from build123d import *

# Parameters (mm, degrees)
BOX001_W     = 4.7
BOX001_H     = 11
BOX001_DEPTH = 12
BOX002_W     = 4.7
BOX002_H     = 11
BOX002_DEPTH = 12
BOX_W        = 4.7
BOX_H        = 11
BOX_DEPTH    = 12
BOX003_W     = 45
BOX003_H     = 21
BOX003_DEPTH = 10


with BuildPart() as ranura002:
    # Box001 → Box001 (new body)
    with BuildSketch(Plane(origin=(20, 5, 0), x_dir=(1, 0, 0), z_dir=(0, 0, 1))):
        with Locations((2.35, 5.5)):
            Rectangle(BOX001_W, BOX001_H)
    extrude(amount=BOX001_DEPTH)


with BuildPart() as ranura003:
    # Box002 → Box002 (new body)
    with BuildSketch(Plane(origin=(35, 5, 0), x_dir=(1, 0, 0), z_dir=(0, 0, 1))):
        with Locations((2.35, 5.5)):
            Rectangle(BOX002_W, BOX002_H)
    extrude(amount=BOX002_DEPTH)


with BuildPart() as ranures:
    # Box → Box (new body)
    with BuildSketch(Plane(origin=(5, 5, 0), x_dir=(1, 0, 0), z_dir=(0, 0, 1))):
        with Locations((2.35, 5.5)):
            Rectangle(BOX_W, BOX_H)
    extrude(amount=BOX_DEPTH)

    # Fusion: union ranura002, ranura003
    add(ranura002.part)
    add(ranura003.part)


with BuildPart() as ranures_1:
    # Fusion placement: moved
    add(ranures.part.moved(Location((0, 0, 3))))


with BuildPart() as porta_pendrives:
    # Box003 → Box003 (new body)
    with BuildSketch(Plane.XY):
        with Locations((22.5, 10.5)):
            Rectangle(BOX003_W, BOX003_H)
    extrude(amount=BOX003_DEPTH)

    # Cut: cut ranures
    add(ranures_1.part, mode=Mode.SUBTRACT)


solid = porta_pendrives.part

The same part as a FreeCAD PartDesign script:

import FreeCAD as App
import Part
import Sketcher
from FreeCAD import Vector
Q = App.Units.Quantity

doc = App.newDocument("Part")
body = doc.addObject("PartDesign::Body", "Body")

# Sketch on XY plane
sketch1 = body.newObject("Sketcher::SketchObject", "Sketch")
sketch1.AttachmentSupport = (doc.getObject("XY_Plane"), [""])
sketch1.MapMode = "FlatFace"
sketch1.addGeometry(Part.LineSegment(Vector(20, 16, 0), Vector(20, 5, 0)), False)
sketch1.addGeometry(Part.LineSegment(Vector(20, 5, 0), Vector(24.7, 5, 0)), False)
sketch1.addGeometry(Part.LineSegment(Vector(24.7, 5, 0), Vector(24.7, 16, 0)), False)
sketch1.addGeometry(Part.LineSegment(Vector(24.7, 16, 0), Vector(20, 16, 0)), False)
sketch1.addConstraint(Sketcher.Constraint("Coincident", 0, 2, 1, 1))
sketch1.addConstraint(Sketcher.Constraint("Coincident", 1, 2, 2, 1))
sketch1.addConstraint(Sketcher.Constraint("Coincident", 2, 2, 3, 1))
sketch1.addConstraint(Sketcher.Constraint("Coincident", 3, 2, 0, 1))
sketch1.addConstraint(Sketcher.Constraint("Vertical", 0))
sketch1.addConstraint(Sketcher.Constraint("Horizontal", 1))
sketch1.addConstraint(Sketcher.Constraint("Vertical", 2))
sketch1.addConstraint(Sketcher.Constraint("Horizontal", 3))
sketch1.addConstraint(Sketcher.Constraint("DistanceY", 0, 2, 0, 1, Q("11 mm")))
sketch1.addConstraint(Sketcher.Constraint("DistanceX", 1, 1, 1, 2, Q("4.7 mm")))
sketch1.addConstraint(Sketcher.Constraint("DistanceX", -1, 1, 0, 2, Q("20 mm")))
sketch1.addConstraint(Sketcher.Constraint("DistanceY", -1, 1, 0, 2, Q("5 mm")))
pad1 = body.newObject("PartDesign::Pad", "Pad")
pad1.Profile = sketch1
pad1.Length = 12
body2 = doc.addObject("PartDesign::Body", "Body001")

# Sketch on XY plane
sketch2 = body2.newObject("Sketcher::SketchObject", "Sketch001")
sketch2.AttachmentSupport = (doc.getObject("XY_Plane001"), [""])
sketch2.MapMode = "FlatFace"
sketch2.addGeometry(Part.LineSegment(Vector(35, 16, 0), Vector(35, 5, 0)), False)
sketch2.addGeometry(Part.LineSegment(Vector(35, 5, 0), Vector(39.7, 5, 0)), False)
sketch2.addGeometry(Part.LineSegment(Vector(39.7, 5, 0), Vector(39.7, 16, 0)), False)
sketch2.addGeometry(Part.LineSegment(Vector(39.7, 16, 0), Vector(35, 16, 0)), False)
sketch2.addConstraint(Sketcher.Constraint("Coincident", 0, 2, 1, 1))
sketch2.addConstraint(Sketcher.Constraint("Coincident", 1, 2, 2, 1))
sketch2.addConstraint(Sketcher.Constraint("Coincident", 2, 2, 3, 1))
sketch2.addConstraint(Sketcher.Constraint("Coincident", 3, 2, 0, 1))
sketch2.addConstraint(Sketcher.Constraint("Vertical", 0))
sketch2.addConstraint(Sketcher.Constraint("Horizontal", 1))
sketch2.addConstraint(Sketcher.Constraint("Vertical", 2))
sketch2.addConstraint(Sketcher.Constraint("Horizontal", 3))
sketch2.addConstraint(Sketcher.Constraint("DistanceY", 0, 2, 0, 1, Q("11 mm")))
sketch2.addConstraint(Sketcher.Constraint("DistanceX", 1, 1, 1, 2, Q("4.7 mm")))
sketch2.addConstraint(Sketcher.Constraint("DistanceX", -1, 1, 0, 2, Q("35 mm")))
sketch2.addConstraint(Sketcher.Constraint("DistanceY", -1, 1, 0, 2, Q("5 mm")))
pad2 = body2.newObject("PartDesign::Pad", "Pad001")
pad2.Profile = sketch2
pad2.Length = 12
body3 = doc.addObject("PartDesign::Body", "Body002")
body3.AllowCompound = True

# Sketch on XY plane
sketch3 = body3.newObject("Sketcher::SketchObject", "Sketch002")
sketch3.AttachmentSupport = (doc.getObject("XY_Plane002"), [""])
sketch3.MapMode = "FlatFace"
sketch3.addGeometry(Part.LineSegment(Vector(5, 16, 0), Vector(5, 5, 0)), False)
sketch3.addGeometry(Part.LineSegment(Vector(5, 5, 0), Vector(9.7, 5, 0)), False)
sketch3.addGeometry(Part.LineSegment(Vector(9.7, 5, 0), Vector(9.7, 16, 0)), False)
sketch3.addGeometry(Part.LineSegment(Vector(9.7, 16, 0), Vector(5, 16, 0)), False)
sketch3.addConstraint(Sketcher.Constraint("Coincident", 0, 2, 1, 1))
sketch3.addConstraint(Sketcher.Constraint("Coincident", 1, 2, 2, 1))
sketch3.addConstraint(Sketcher.Constraint("Coincident", 2, 2, 3, 1))
sketch3.addConstraint(Sketcher.Constraint("Coincident", 3, 2, 0, 1))
sketch3.addConstraint(Sketcher.Constraint("Vertical", 0))
sketch3.addConstraint(Sketcher.Constraint("Horizontal", 1))
sketch3.addConstraint(Sketcher.Constraint("Vertical", 2))
sketch3.addConstraint(Sketcher.Constraint("Horizontal", 3))
sketch3.addConstraint(Sketcher.Constraint("DistanceY", 0, 2, 0, 1, Q("11 mm")))
sketch3.addConstraint(Sketcher.Constraint("DistanceX", 1, 1, 1, 2, Q("4.7 mm")))
sketch3.addConstraint(Sketcher.Constraint("DistanceX", -1, 1, 0, 2, Q("5 mm")))
sketch3.addConstraint(Sketcher.Constraint("DistanceY", -1, 1, 0, 2, Q("5 mm")))
pad3 = body3.newObject("PartDesign::Pad", "Pad002")
pad3.Profile = sketch3
pad3.Length = 12
doc.recompute()

boolean = body3.newObject("PartDesign::Boolean", "Boolean")
boolean.Type = "Fuse"
boolean.addObjects([body])
doc.recompute()

boolean2 = body3.newObject("PartDesign::Boolean", "Boolean001")
boolean2.Type = "Fuse"
boolean2.addObjects([body2])
body4 = doc.addObject("PartDesign::Body", "Body003")
body4.AllowCompound = True
doc.recompute()

body3.Placement = App.Placement(Vector(0, 0, 3), App.Rotation(Vector(0, 0, 1), 0))
boolean3 = body4.newObject("PartDesign::Boolean", "Boolean002")
boolean3.Type = "Fuse"
boolean3.addObjects([body3])
body5 = doc.addObject("PartDesign::Body", "Body004")

# Sketch on XY plane
sketch4 = body5.newObject("Sketcher::SketchObject", "Sketch003")
sketch4.AttachmentSupport = (doc.getObject("XY_Plane004"), [""])
sketch4.MapMode = "FlatFace"
sketch4.addGeometry(Part.LineSegment(Vector(0, 21, 0), Vector(0, 0, 0)), False)
sketch4.addGeometry(Part.LineSegment(Vector(0, 0, 0), Vector(45, 0, 0)), False)
sketch4.addGeometry(Part.LineSegment(Vector(45, 0, 0), Vector(45, 21, 0)), False)
sketch4.addGeometry(Part.LineSegment(Vector(45, 21, 0), Vector(0, 21, 0)), False)
sketch4.addConstraint(Sketcher.Constraint("Coincident", 0, 2, 1, 1))
sketch4.addConstraint(Sketcher.Constraint("Coincident", 1, 2, 2, 1))
sketch4.addConstraint(Sketcher.Constraint("Coincident", 2, 2, 3, 1))
sketch4.addConstraint(Sketcher.Constraint("Coincident", 3, 2, 0, 1))
sketch4.addConstraint(Sketcher.Constraint("Vertical", 0))
sketch4.addConstraint(Sketcher.Constraint("Horizontal", 1))
sketch4.addConstraint(Sketcher.Constraint("Vertical", 2))
sketch4.addConstraint(Sketcher.Constraint("Horizontal", 3))
sketch4.addConstraint(Sketcher.Constraint("Coincident", 0, 2, -1, 1))
sketch4.addConstraint(Sketcher.Constraint("DistanceX", 1, 1, 1, 2, Q("45 mm")))
sketch4.addConstraint(Sketcher.Constraint("DistanceY", 0, 2, 0, 1, Q("21 mm")))
pad4 = body5.newObject("PartDesign::Pad", "Pad003")
pad4.Profile = sketch4
pad4.Length = 10
doc.recompute()

boolean4 = body5.newObject("PartDesign::Boolean", "Boolean003")
boolean4.Type = "Cut"
boolean4.addObjects([body4])

doc.recompute()
